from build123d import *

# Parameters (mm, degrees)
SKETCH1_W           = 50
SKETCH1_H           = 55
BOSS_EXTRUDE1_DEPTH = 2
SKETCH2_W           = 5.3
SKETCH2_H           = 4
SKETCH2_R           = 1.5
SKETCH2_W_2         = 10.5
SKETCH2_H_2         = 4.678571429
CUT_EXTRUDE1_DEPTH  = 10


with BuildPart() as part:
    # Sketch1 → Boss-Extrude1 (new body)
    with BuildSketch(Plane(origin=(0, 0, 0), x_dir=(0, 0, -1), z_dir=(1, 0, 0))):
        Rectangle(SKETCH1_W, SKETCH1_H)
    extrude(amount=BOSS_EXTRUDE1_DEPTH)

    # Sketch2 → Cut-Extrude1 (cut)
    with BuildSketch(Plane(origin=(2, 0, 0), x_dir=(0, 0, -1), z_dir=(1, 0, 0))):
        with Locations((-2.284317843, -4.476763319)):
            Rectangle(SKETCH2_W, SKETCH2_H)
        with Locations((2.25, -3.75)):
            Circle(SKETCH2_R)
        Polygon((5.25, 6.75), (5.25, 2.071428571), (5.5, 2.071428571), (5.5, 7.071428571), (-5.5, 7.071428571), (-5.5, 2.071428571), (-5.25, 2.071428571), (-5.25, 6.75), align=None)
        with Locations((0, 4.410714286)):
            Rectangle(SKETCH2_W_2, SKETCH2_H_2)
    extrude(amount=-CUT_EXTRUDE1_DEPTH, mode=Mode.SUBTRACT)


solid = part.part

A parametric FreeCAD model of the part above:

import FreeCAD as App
import Part
import Sketcher

V = App.Vector
Q = App.Units.Quantity


def add_polygon(sketch, points):
    """Adds a closed chain of lines whose ends are joined by coincident constraints."""
    first, n = sketch.GeometryCount, len(points)
    for a, b in zip(points, points[1:] + points[:1]):
        sketch.addGeometry(Part.LineSegment(App.Vector(*a, 0), App.Vector(*b, 0)), False)
    for i in range(n):
        sketch.addConstraint(Sketcher.Constraint("Coincident", first + i, 2, first + (i + 1) % n, 1))

doc = App.newDocument("Part")
body = doc.addObject("PartDesign::Body", "Body")

# Sketch on YZ plane
sketch1 = body.newObject("Sketcher::SketchObject", "Sketch")
sketch1.AttachmentSupport = (doc.getObject("YZ_Plane"), [""])
sketch1.MapMode = "FlatFace"
add_polygon(sketch1, [(27.5, 25), (-27.5, 25), (-27.5, -25), (27.5, -25)])  # lines 0-3
sketch1.addConstraint([
    Sketcher.Constraint("Horizontal", 0),
    Sketcher.Constraint("Vertical", 1),
    Sketcher.Constraint("Horizontal", 2),
    Sketcher.Constraint("Vertical", 3),
    Sketcher.Constraint("Symmetric", 0, 2, 2, 2, -1, 1),
    Sketcher.Constraint("DistanceX", 0, 2, 0, 1, Q("55 mm")),
    Sketcher.Constraint("DistanceY", 1, 2, 1, 1, Q("50 mm")),
])
pad1 = body.newObject("PartDesign::Pad", "Pad")
pad1.Profile = sketch1
pad1.Length = 2

# Sketch on YZ plane
sketch2 = body.newObject("Sketcher::SketchObject", "Sketch001")
sketch2.AttachmentSupport = (doc.getObject("YZ_Plane"), [""])
sketch2.MapMode = "FlatFace"
sketch2.AttachmentOffset = App.Placement(V(0, 0, 2), App.Rotation())
add_polygon(sketch2, [(-2.476763, 4.934318), (-6.476763, 4.934318), (-6.476763, -0.365682), (-2.476763, -0.365682)])  # lines 0-3
sketch2.addGeometry(Part.Circle(V(-3.75, -2.25, 0), V(0, 0, 1), 1.5), False)  # 4
add_polygon(sketch2, [(2.071429, -5.25), (2.071429, -5.5), (7.071429, -5.5), (7.071429, 5.5), (2.071429, 5.5), (2.071429, 5.25)])  # lines 5-10
sketch2.addConstraint([
    Sketcher.Constraint("Horizontal", 0),
    Sketcher.Constraint("Vertical", 1),
    Sketcher.Constraint("Horizontal", 2),
    Sketcher.Constraint("Vertical", 3),
    Sketcher.Constraint("Vertical", 5),
    Sketcher.Constraint("Horizontal", 6),
    Sketcher.Constraint("Vertical", 7),
    Sketcher.Constraint("Horizontal", 8),
    Sketcher.Constraint("Vertical", 9),
    Sketcher.Constraint("Vertical", 10),
    Sketcher.Constraint("Equal", 5, 9),
    Sketcher.Constraint("Diameter", 4, Q("3 mm")),
    Sketcher.Constraint("DistanceX", 0, 2, 0, 1, Q("4 mm")),
    Sketcher.Constraint("DistanceX", 6, 1, 6, 2, Q("5 mm")),
    Sketcher.Constraint("DistanceY", 7, 1, 7, 2, Q("11 mm")),
    Sketcher.Constraint("DistanceY", 1, 2, 1, 1, Q("5.3 mm")),
    Sketcher.Constraint("DistanceY", 10, 2, 10, 1, Q("10.5 mm")),
    Sketcher.Constraint("DistanceY", 10, 2, 4, 3, Q("3 mm")),
    Sketcher.Constraint("DistanceY", 5, 2, -1, 1, Q("5.5 mm")),
    Sketcher.Constraint("DistanceX", 4, 3, -1, 1, Q("3.75 mm")),
    Sketcher.Constraint("DistanceX", -1, 1, 5, 2, Q("2.071429 mm")),
    Sketcher.Constraint("DistanceX", 2, 2, 5, 2, Q("4.548192 mm")),
    Sketcher.Constraint("DistanceY", -1, 1, 0, 2, Q("4.934318 mm")),
])
pocket1 = body.newObject("PartDesign::Pocket", "Pocket")
pocket1.Profile = sketch2
pocket1.Length = 10

doc.recompute()
